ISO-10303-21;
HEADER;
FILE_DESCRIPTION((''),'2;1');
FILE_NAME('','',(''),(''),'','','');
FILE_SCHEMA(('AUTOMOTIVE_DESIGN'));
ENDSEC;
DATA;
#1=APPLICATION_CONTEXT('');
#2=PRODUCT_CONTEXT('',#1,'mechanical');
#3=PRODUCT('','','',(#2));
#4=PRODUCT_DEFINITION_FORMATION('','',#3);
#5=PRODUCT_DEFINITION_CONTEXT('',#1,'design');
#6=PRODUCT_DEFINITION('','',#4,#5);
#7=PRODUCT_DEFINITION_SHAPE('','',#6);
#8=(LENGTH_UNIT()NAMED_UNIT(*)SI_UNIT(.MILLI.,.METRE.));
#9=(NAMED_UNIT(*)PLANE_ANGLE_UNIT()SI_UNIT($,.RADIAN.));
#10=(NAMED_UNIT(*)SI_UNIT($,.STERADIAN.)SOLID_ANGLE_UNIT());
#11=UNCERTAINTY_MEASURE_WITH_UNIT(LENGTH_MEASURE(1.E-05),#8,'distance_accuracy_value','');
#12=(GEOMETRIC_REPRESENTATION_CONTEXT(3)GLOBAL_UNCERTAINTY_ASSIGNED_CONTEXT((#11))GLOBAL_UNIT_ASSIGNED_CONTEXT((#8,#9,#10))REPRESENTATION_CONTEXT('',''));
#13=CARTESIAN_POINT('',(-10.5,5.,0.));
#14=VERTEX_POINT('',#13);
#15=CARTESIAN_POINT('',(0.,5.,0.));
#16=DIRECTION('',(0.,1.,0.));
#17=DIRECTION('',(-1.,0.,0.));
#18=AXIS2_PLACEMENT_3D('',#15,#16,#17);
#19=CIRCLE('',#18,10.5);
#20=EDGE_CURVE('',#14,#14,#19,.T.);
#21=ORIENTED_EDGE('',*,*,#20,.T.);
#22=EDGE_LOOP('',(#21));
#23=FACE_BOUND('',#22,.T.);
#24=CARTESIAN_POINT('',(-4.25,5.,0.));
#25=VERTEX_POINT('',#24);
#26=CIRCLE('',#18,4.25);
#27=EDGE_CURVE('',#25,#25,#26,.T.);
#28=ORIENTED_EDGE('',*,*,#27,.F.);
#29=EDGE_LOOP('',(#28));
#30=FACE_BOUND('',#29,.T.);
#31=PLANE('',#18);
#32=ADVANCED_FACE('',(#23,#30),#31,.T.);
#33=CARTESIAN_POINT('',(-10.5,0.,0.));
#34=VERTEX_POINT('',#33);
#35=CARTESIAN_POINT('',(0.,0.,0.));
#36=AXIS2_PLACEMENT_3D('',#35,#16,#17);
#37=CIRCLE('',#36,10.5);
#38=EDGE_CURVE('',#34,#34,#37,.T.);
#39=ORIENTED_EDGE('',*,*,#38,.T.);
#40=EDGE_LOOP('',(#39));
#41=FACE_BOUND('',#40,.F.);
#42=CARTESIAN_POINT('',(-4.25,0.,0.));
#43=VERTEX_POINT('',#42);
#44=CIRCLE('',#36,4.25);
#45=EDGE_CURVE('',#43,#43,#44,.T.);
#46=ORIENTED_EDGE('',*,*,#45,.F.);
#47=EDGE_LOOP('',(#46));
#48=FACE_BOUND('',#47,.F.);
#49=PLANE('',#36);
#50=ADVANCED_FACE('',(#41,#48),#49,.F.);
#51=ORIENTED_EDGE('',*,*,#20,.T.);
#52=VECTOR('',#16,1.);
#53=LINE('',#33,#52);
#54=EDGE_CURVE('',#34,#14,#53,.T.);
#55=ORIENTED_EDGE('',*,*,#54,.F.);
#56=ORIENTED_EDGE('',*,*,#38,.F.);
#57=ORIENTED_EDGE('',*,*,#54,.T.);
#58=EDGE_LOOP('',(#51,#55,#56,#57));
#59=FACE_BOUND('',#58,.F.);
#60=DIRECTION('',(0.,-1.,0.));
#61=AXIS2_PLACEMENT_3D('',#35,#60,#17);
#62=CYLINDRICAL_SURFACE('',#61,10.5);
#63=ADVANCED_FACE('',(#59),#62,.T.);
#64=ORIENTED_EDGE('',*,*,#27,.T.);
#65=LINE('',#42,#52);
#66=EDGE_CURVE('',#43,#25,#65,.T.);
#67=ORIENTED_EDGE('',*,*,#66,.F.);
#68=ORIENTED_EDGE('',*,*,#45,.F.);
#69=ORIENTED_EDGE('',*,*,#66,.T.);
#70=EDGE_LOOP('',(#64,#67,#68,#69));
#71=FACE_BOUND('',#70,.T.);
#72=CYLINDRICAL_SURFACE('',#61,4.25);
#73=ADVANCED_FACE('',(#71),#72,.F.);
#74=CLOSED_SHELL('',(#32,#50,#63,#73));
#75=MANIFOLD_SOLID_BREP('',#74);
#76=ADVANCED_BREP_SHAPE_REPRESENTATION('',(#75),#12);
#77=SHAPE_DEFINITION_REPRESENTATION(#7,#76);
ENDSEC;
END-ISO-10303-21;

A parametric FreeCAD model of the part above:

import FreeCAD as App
import Part
import Sketcher
from FreeCAD import Vector
Q = App.Units.Quantity

doc = App.newDocument("Part")
body = doc.addObject("PartDesign::Body", "Body")

# Sketch on XZ plane
sketch1 = body.newObject("Sketcher::SketchObject", "Sketch")
sketch1.AttachmentSupport = (doc.getObject("XZ_Plane"), [""])
sketch1.MapMode = "FlatFace"
sketch1.addGeometry(Part.Circle(Vector(0, 0, 0), Vector(0, 0, 1), 10.5), False)
sketch1.addGeometry(Part.Circle(Vector(0, 0, 0), Vector(0, 0, 1), 4.2), False)
sketch1.addConstraint(Sketcher.Constraint("Coincident", 0, 3, -1, 1))
sketch1.addConstraint(Sketcher.Constraint("Coincident", 1, 3, -1, 1))
sketch1.addConstraint(Sketcher.Constraint("Diameter", 0, Q("21 mm")))
sketch1.addConstraint(Sketcher.Constraint("Diameter", 1, Q("8.5 mm")))
pad1 = body.newObject("PartDesign::Pad", "Pad")
pad1.Profile = sketch1
pad1.Length = 5
pad1.Reversed = True

doc.recompute()
